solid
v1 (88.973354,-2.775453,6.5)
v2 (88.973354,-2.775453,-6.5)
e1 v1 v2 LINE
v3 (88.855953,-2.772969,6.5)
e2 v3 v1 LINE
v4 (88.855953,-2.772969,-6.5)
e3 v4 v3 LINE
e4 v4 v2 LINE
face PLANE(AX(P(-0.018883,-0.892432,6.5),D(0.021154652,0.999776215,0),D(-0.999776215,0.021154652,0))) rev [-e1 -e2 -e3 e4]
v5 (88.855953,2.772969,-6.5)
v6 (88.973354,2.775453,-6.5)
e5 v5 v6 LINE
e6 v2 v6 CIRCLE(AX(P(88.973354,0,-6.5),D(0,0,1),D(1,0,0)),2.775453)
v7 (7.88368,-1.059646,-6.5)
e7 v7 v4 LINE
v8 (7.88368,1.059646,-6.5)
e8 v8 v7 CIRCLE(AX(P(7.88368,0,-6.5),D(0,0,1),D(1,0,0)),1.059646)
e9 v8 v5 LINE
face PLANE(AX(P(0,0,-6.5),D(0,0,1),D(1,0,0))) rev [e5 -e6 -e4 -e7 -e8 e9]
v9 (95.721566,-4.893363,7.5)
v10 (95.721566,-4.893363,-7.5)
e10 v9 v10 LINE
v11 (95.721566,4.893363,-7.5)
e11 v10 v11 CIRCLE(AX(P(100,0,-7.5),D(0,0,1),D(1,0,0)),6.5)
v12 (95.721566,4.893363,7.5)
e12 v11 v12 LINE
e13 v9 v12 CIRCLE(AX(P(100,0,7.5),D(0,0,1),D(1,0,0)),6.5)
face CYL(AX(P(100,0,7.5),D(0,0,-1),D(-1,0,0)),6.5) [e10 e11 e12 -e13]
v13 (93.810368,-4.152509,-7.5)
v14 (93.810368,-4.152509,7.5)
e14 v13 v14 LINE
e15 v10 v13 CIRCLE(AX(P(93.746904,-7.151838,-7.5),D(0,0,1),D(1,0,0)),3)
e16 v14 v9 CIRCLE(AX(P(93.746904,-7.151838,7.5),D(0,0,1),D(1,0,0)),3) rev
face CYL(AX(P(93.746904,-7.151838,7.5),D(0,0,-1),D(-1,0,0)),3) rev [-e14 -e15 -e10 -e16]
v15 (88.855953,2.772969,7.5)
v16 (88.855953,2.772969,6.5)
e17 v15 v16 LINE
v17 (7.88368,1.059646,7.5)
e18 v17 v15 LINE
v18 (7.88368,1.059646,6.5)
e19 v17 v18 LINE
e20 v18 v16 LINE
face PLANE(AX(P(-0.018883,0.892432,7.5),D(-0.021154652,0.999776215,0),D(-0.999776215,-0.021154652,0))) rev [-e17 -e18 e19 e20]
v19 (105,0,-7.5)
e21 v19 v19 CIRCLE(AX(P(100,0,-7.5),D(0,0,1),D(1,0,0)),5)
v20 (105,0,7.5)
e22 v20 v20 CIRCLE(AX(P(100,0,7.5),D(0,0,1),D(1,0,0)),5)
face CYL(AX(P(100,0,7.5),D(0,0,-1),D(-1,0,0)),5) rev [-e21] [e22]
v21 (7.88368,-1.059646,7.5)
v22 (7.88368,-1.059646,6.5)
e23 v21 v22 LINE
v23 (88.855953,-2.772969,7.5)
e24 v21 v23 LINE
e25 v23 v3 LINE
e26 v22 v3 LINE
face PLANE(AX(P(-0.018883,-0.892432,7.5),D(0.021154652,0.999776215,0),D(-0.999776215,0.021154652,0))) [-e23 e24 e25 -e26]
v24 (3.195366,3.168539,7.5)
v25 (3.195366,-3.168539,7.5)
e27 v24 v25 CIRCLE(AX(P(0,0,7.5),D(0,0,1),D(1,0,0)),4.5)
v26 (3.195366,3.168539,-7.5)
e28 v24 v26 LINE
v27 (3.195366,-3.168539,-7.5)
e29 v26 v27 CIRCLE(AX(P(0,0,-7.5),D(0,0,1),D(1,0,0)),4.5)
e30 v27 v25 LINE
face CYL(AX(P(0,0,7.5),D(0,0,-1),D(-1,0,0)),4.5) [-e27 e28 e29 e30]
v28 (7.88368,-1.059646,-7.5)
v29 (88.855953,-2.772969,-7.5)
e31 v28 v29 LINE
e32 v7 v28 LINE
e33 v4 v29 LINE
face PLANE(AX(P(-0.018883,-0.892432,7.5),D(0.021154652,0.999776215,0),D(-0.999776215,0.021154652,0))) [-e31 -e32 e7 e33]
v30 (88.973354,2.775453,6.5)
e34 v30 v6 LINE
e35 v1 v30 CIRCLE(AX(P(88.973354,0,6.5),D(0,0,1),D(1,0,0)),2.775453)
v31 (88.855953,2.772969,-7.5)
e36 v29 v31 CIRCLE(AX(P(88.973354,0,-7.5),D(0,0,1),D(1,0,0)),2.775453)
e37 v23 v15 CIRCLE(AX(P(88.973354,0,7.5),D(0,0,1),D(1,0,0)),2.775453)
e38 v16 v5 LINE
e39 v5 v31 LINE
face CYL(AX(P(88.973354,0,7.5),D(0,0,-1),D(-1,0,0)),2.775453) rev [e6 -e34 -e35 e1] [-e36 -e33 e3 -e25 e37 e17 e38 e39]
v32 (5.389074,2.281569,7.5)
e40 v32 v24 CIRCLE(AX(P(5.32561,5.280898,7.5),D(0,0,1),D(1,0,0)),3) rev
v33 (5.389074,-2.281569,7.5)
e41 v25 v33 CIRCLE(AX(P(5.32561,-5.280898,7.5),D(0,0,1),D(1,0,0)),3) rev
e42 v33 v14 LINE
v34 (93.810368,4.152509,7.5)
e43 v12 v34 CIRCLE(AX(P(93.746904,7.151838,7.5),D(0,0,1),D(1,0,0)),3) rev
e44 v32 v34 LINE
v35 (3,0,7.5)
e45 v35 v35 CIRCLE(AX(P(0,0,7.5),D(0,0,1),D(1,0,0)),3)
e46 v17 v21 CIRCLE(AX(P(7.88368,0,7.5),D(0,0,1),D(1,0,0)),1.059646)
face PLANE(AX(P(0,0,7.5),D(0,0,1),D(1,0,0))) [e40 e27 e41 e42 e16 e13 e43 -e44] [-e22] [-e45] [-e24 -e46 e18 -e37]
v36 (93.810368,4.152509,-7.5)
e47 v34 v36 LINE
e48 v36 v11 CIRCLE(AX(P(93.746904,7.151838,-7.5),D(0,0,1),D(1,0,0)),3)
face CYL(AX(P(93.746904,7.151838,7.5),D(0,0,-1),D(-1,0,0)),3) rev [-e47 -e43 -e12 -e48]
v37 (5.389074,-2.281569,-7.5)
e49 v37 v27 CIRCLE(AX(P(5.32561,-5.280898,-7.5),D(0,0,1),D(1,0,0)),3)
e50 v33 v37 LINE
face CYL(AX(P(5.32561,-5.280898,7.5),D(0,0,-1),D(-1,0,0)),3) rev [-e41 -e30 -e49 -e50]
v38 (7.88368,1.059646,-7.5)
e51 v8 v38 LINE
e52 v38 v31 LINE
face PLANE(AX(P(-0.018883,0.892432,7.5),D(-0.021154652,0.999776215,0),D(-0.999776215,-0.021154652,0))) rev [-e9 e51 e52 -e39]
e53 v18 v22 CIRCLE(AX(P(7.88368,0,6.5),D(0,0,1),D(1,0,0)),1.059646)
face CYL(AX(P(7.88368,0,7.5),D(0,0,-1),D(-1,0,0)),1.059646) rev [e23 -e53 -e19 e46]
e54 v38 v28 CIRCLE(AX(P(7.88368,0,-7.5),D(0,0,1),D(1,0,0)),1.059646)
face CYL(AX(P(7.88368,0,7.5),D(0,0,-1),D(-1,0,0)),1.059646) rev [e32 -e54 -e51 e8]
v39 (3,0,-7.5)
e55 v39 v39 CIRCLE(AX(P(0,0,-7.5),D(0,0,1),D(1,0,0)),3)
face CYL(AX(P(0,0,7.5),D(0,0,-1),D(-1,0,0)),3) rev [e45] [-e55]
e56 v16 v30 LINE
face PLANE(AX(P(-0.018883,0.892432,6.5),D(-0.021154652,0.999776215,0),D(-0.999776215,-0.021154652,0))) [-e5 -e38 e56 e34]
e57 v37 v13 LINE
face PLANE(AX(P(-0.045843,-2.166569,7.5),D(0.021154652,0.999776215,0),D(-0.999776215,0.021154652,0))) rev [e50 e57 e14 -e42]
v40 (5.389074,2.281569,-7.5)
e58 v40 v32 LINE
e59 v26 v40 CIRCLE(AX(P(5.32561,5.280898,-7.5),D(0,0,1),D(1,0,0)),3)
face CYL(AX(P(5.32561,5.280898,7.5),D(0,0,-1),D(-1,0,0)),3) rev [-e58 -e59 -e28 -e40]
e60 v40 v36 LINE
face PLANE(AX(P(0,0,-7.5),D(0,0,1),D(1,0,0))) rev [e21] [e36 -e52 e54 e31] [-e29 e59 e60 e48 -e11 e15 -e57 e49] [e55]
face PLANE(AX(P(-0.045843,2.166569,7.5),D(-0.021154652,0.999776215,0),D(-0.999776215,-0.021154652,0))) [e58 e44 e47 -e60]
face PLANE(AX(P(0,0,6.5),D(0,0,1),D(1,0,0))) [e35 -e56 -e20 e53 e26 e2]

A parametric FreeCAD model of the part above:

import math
import FreeCAD as App
import Part
import Sketcher
from FreeCAD import Vector
Q = App.Units.Quantity


def edges_at(feature, points):
    """Names of the edges that pass closest to the given points."""
    edges = feature.Shape.Edges
    near = lambda p: min(range(len(edges)), key=lambda i: edges[i].distToShape(Part.Vertex(*p))[0])
    return sorted({f"Edge{near(p) + 1}" for p in points})

doc = App.newDocument("Part")
body = doc.addObject("PartDesign::Body", "Body")

# Sketch on XY plane
sketch1 = doc.addObject("Sketcher::SketchObject", "Sketch")
body.addObject(sketch1)
sketch1.AttachmentSupport = (doc.XY_Plane, [""])
sketch1.MapMode = "FlatFace"
sketch1.addGeometry(Part.LineSegment(Vector(95.020711, 4.178119, 0), Vector(3.897114, 2.25, 0)), False)
sketch1.addGeometry(Part.ArcOfCircle(Part.Circle(Vector(0, 0, 0), Vector(0, 0, 1), 4.5), math.radians(30), math.radians(330)), False)
sketch1.addGeometry(Part.LineSegment(Vector(3.897114, -2.25, 0), Vector(95.020711, -4.178119, 0)), False)
sketch1.addGeometry(Part.ArcOfCircle(Part.Circle(Vector(100, 0, 0), Vector(0, 0, 1), 6.5), math.radians(-140), math.radians(140)), False)
sketch1.addGeometry(Part.Circle(Vector(0, 0, 0), Vector(0, 0, 1), 3), False)
sketch1.addGeometry(Part.LineSegment(Vector(88.855953, -2.772969, 0), Vector(7.88368, -1.059646, 0)), False)
sketch1.addGeometry(Part.ArcOfCircle(Part.Circle(Vector(7.88368, 0, 0), Vector(0, 0, 1), 1.059646), math.radians(90), math.radians(270)), False)
sketch1.addGeometry(Part.LineSegment(Vector(7.88368, 1.059646, 0), Vector(88.855953, 2.772969, 0)), False)
sketch1.addGeometry(Part.ArcOfCircle(Part.Circle(Vector(88.973354, 0, 0), Vector(0, 0, 1), 2.775453), math.radians(-92.424325), math.radians(92.424325)), False)
sketch1.addGeometry(Part.Circle(Vector(100, 0, 0), Vector(0, 0, 1), 5), False)
sketch1.addConstraint(Sketcher.Constraint("Coincident", 0, 2, 1, 1))
sketch1.addConstraint(Sketcher.Constraint("Coincident", 1, 2, 2, 1))
sketch1.addConstraint(Sketcher.Constraint("Coincident", 2, 2, 3, 1))
sketch1.addConstraint(Sketcher.Constraint("Coincident", 3, 2, 0, 1))
sketch1.addConstraint(Sketcher.Constraint("Coincident", 5, 2, 6, 2))
sketch1.addConstraint(Sketcher.Constraint("Coincident", 6, 1, 7, 1))
sketch1.addConstraint(Sketcher.Constraint("Coincident", 7, 2, 8, 2))
sketch1.addConstraint(Sketcher.Constraint("Coincident", 8, 1, 5, 1))
sketch1.addConstraint(Sketcher.Constraint("Coincident", 1, 3, -1, 1))
sketch1.addConstraint(Sketcher.Constraint("Coincident", 4, 3, -1, 1))
sketch1.addConstraint(Sketcher.Constraint("Coincident", 9, 3, 3, 3))
sketch1.addConstraint(Sketcher.Constraint("PointOnObject", 3, 3, -1))
sketch1.addConstraint(Sketcher.Constraint("PointOnObject", 6, 3, -1))
sketch1.addConstraint(Sketcher.Constraint("PointOnObject", 8, 3, -1))
sketch1.addConstraint(Sketcher.Constraint("Diameter", 4, Q("6 mm")))
sketch1.addConstraint(Sketcher.Constraint("Diameter", 9, Q("10 mm")))
sketch1.addConstraint(Sketcher.Constraint("Radius", 1, Q("4.5 mm")))
sketch1.addConstraint(Sketcher.Constraint("Radius", 3, Q("6.5 mm")))
sketch1.addConstraint(Sketcher.Constraint("DistanceX", -1, 1, 3, 3, Q("100 mm")))
sketch1.addConstraint(Sketcher.Constraint("DistanceY", 1, 2, 0, 2, Q("4.5 mm")))
sketch1.addConstraint(Sketcher.Constraint("DistanceY", -1, 1, 0, 2, Q("2.25 mm")))
sketch1.addConstraint(Sketcher.Constraint("Radius", 6, Q("1.059646 mm")))
sketch1.addConstraint(Sketcher.Constraint("Radius", 8, Q("2.775453 mm")))
sketch1.addConstraint(Sketcher.Constraint("DistanceX", 7, 2, 8, 3, Q("0.117401 mm")))
sketch1.addConstraint(Sketcher.Constraint("DistanceX", 8, 1, 8, 3, Q("0.117401 mm")))
sketch1.addConstraint(Sketcher.Constraint("DistanceX", -1, 1, 6, 3, Q("7.88368 mm")))
sketch1.addConstraint(Sketcher.Constraint("DistanceX", -1, 1, 2, 2, Q("95.020711 mm")))
sketch1.addConstraint(Sketcher.Constraint("DistanceX", -1, 1, 3, 2, Q("95.020711 mm")))
sketch1.addConstraint(Sketcher.Constraint("DistanceX", -1, 1, 5, 2, Q("7.88368 mm")))
sketch1.addConstraint(Sketcher.Constraint("DistanceX", -1, 1, 6, 1, Q("7.88368 mm")))
sketch1.addConstraint(Sketcher.Constraint("DistanceX", 0, 2, 8, 3, Q("85.07624 mm")))
pad1 = doc.addObject("PartDesign::Pad", "Pad")
body.addObject(pad1)
pad1.Profile = sketch1
pad1.Length = 15
pad1.Midplane = True

# Sketch on XY plane
sketch2 = doc.addObject("Sketcher::SketchObject", "Sketch001")
body.addObject(sketch2)
sketch2.AttachmentSupport = (doc.XY_Plane, [""])
sketch2.MapMode = "FlatFace"
sketch2.addGeometry(Part.LineSegment(Vector(88.855953, 2.772969, 0), Vector(7.88368, 1.059646, 0)), False)
sketch2.addGeometry(Part.ArcOfCircle(Part.Circle(Vector(7.88368, 0, 0), Vector(0, 0, 1), 1.059646), math.radians(90), math.radians(270)), False)
sketch2.addGeometry(Part.LineSegment(Vector(7.88368, -1.059646, 0), Vector(88.855953, -2.772969, 0)), False)
sketch2.addGeometry(Part.LineSegment(Vector(88.855953, -2.772969, 0), Vector(88.973354, -2.775453, 0)), False)
sketch2.addGeometry(Part.ArcOfCircle(Part.Circle(Vector(88.973354, 0, 0), Vector(0, 0, 1), 2.775453), math.radians(-90), math.radians(90)), False)
sketch2.addGeometry(Part.LineSegment(Vector(88.973354, 2.775453, 0), Vector(88.855953, 2.772969, 0)), False)
sketch2.addConstraint(Sketcher.Constraint("Coincident", 0, 2, 1, 1))
sketch2.addConstraint(Sketcher.Constraint("Coincident", 1, 2, 2, 1))
sketch2.addConstraint(Sketcher.Constraint("Coincident", 2, 2, 3, 1))
sketch2.addConstraint(Sketcher.Constraint("Coincident", 3, 2, 4, 1))
sketch2.addConstraint(Sketcher.Constraint("Coincident", 4, 2, 5, 1))
sketch2.addConstraint(Sketcher.Constraint("Coincident", 5, 2, 0, 1))
sketch2.addConstraint(Sketcher.Constraint("Symmetric", 0, 2, 1, 2, -1))
sketch2.addConstraint(Sketcher.Constraint("Symmetric", 3, 2, 4, 2, -1))
sketch2.addConstraint(Sketcher.Constraint("Symmetric", 2, 2, 5, 2, -1))
sketch2.addConstraint(Sketcher.Constraint("Parallel", 2, 3))
sketch2.addConstraint(Sketcher.Constraint("Vertical", 1, 3, 0, 2))
sketch2.addConstraint(Sketcher.Constraint("Vertical", 4, 3, 3, 2))
sketch2.addConstraint(Sketcher.Constraint("Radius", 1, Q("1.059646 mm")))
sketch2.addConstraint(Sketcher.Constraint("Radius", 4, Q("2.775453 mm")))
sketch2.addConstraint(Sketcher.Constraint("DistanceX", 2, 2, 4, 3, Q("0.117401 mm")))
sketch2.addConstraint(Sketcher.Constraint("DistanceX", -1, 1, 1, 3, Q("7.88368 mm")))
sketch2.addConstraint(Sketcher.Constraint("Distance", 0, Q("80.990397 mm")))
pad2 = doc.addObject("PartDesign::Pad", "Pad001")
body.addObject(pad2)
pad2.Profile = sketch2
pad2.Length = 13
pad2.Midplane = True
doc.recompute()

fillet = doc.addObject("PartDesign::Fillet", "Fillet")
body.addObject(fillet)
fillet.Base = (pad2, edges_at(pad2, [
    (3.897, -2.25, 0),
    (3.897, 2.25, 0),
    (95.021, 4.178, 0),
    (95.021, -4.178, 0),
]))
fillet.Radius = 3

doc.recompute()
